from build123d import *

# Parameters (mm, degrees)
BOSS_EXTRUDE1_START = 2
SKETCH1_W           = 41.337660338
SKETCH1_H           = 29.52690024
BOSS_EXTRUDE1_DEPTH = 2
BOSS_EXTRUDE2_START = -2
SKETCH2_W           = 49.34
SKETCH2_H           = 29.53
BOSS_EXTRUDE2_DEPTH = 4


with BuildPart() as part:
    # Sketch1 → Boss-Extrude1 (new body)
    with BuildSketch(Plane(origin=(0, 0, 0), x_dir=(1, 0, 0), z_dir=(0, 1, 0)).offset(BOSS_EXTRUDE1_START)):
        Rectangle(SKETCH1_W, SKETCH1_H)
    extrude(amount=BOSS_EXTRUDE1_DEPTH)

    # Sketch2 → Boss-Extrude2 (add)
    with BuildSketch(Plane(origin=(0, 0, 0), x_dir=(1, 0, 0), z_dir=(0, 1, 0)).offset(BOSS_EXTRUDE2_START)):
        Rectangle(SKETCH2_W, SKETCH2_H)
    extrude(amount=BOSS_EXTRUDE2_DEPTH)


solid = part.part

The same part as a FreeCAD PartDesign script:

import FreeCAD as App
import Part
import Sketcher
from FreeCAD import Vector
Q = App.Units.Quantity

doc = App.newDocument("Part")
params = doc.addObject("Spreadsheet::Sheet", "Params")
for row, (alias, value) in enumerate([
    ("pad1_length", "2 mm"),
    ("sketch2_width", "49.34 mm"),
    ("sketch2_height", "29.53 mm"),
    ("pad2_length", "4 mm"),
], start=1):
    params.set(f"A{row}", alias)
    params.set(f"B{row}", "=" + value)
    params.setAlias(f"B{row}", alias)

body = doc.addObject("PartDesign::Body", "Body")

# Sketch on XZ plane
sketch1 = doc.addObject("Sketcher::SketchObject", "Sketch")
body.addObject(sketch1)
sketch1.AttachmentSupport = (doc.XZ_Plane, [""])
sketch1.MapMode = "FlatFace"
sketch1.AttachmentOffset = App.Placement(Vector(0, 0, -2), App.Rotation())
sketch1.addGeometry(Part.LineSegment(Vector(-21, -15, 0), Vector(-21, 15, 0)), False)
sketch1.addGeometry(Part.LineSegment(Vector(-21, 15, 0), Vector(21, 15, 0)), False)
sketch1.addGeometry(Part.LineSegment(Vector(21, 15, 0), Vector(21, -15, 0)), False)
sketch1.addGeometry(Part.LineSegment(Vector(21, -15, 0), Vector(-21, -15, 0)), False)
sketch1.addConstraint(Sketcher.Constraint("Coincident", 0, 2, 1, 1))
sketch1.addConstraint(Sketcher.Constraint("Coincident", 1, 2, 2, 1))
sketch1.addConstraint(Sketcher.Constraint("Coincident", 2, 2, 3, 1))
sketch1.addConstraint(Sketcher.Constraint("Coincident", 3, 2, 0, 1))
sketch1.addConstraint(Sketcher.Constraint("Vertical", 0))
sketch1.addConstraint(Sketcher.Constraint("Horizontal", 1))
sketch1.addConstraint(Sketcher.Constraint("Vertical", 2))
sketch1.addConstraint(Sketcher.Constraint("Horizontal", 3))
sketch1.addConstraint(Sketcher.Constraint("Symmetric", 0, 2, 2, 2, -1, 1))
sketch1.addConstraint(Sketcher.Constraint("DistanceY", 0, 1, 0, 2, Q("29.5269 mm")))
sketch1.addConstraint(Sketcher.Constraint("DistanceX", 1, 1, 1, 2, Q("41.33766 mm")))
pad1 = doc.addObject("PartDesign::Pad", "Pad")
body.addObject(pad1)
pad1.Profile = sketch1
pad1.setExpression("Length", "Params.pad1_length")
pad1.Reversed = True

# Sketch on XZ plane
sketch2 = doc.addObject("Sketcher::SketchObject", "Sketch001")
body.addObject(sketch2)
sketch2.AttachmentSupport = (doc.XZ_Plane, [""])
sketch2.MapMode = "FlatFace"
sketch2.AttachmentOffset = App.Placement(Vector(0, 0, 2), App.Rotation())
sketch2.addGeometry(Part.LineSegment(Vector(-25, -15, 0), Vector(-25, 15, 0)), False)
sketch2.addGeometry(Part.LineSegment(Vector(-25, 15, 0), Vector(25, 15, 0)), False)
sketch2.addGeometry(Part.LineSegment(Vector(25, 15, 0), Vector(25, -15, 0)), False)
sketch2.addGeometry(Part.LineSegment(Vector(25, -15, 0), Vector(-25, -15, 0)), False)
sketch2.addConstraint(Sketcher.Constraint("Coincident", 0, 2, 1, 1))
sketch2.addConstraint(Sketcher.Constraint("Coincident", 1, 2, 2, 1))
sketch2.addConstraint(Sketcher.Constraint("Coincident", 2, 2, 3, 1))
sketch2.addConstraint(Sketcher.Constraint("Coincident", 3, 2, 0, 1))
sketch2.addConstraint(Sketcher.Constraint("Vertical", 0))
sketch2.addConstraint(Sketcher.Constraint("Horizontal", 1))
sketch2.addConstraint(Sketcher.Constraint("Vertical", 2))
sketch2.addConstraint(Sketcher.Constraint("Horizontal", 3))
sketch2.addConstraint(Sketcher.Constraint("Symmetric", 0, 2, 2, 2, -1, 1))
sketch2.addConstraint(Sketcher.Constraint("DistanceX", 1, 1, 1, 2, Q("49.34 mm")))
sketch2.addConstraint(Sketcher.Constraint("DistanceY", 0, 1, 0, 2, Q("29.53 mm")))
sketch2.setExpression("Constraints[9]", "Params.sketch2_width")
sketch2.setExpression("Constraints[10]", "Params.sketch2_height")
pad2 = doc.addObject("PartDesign::Pad", "Pad001")
body.addObject(pad2)
pad2.Profile = sketch2
pad2.setExpression("Length", "Params.pad2_length")
pad2.Reversed = True

doc.recompute()
